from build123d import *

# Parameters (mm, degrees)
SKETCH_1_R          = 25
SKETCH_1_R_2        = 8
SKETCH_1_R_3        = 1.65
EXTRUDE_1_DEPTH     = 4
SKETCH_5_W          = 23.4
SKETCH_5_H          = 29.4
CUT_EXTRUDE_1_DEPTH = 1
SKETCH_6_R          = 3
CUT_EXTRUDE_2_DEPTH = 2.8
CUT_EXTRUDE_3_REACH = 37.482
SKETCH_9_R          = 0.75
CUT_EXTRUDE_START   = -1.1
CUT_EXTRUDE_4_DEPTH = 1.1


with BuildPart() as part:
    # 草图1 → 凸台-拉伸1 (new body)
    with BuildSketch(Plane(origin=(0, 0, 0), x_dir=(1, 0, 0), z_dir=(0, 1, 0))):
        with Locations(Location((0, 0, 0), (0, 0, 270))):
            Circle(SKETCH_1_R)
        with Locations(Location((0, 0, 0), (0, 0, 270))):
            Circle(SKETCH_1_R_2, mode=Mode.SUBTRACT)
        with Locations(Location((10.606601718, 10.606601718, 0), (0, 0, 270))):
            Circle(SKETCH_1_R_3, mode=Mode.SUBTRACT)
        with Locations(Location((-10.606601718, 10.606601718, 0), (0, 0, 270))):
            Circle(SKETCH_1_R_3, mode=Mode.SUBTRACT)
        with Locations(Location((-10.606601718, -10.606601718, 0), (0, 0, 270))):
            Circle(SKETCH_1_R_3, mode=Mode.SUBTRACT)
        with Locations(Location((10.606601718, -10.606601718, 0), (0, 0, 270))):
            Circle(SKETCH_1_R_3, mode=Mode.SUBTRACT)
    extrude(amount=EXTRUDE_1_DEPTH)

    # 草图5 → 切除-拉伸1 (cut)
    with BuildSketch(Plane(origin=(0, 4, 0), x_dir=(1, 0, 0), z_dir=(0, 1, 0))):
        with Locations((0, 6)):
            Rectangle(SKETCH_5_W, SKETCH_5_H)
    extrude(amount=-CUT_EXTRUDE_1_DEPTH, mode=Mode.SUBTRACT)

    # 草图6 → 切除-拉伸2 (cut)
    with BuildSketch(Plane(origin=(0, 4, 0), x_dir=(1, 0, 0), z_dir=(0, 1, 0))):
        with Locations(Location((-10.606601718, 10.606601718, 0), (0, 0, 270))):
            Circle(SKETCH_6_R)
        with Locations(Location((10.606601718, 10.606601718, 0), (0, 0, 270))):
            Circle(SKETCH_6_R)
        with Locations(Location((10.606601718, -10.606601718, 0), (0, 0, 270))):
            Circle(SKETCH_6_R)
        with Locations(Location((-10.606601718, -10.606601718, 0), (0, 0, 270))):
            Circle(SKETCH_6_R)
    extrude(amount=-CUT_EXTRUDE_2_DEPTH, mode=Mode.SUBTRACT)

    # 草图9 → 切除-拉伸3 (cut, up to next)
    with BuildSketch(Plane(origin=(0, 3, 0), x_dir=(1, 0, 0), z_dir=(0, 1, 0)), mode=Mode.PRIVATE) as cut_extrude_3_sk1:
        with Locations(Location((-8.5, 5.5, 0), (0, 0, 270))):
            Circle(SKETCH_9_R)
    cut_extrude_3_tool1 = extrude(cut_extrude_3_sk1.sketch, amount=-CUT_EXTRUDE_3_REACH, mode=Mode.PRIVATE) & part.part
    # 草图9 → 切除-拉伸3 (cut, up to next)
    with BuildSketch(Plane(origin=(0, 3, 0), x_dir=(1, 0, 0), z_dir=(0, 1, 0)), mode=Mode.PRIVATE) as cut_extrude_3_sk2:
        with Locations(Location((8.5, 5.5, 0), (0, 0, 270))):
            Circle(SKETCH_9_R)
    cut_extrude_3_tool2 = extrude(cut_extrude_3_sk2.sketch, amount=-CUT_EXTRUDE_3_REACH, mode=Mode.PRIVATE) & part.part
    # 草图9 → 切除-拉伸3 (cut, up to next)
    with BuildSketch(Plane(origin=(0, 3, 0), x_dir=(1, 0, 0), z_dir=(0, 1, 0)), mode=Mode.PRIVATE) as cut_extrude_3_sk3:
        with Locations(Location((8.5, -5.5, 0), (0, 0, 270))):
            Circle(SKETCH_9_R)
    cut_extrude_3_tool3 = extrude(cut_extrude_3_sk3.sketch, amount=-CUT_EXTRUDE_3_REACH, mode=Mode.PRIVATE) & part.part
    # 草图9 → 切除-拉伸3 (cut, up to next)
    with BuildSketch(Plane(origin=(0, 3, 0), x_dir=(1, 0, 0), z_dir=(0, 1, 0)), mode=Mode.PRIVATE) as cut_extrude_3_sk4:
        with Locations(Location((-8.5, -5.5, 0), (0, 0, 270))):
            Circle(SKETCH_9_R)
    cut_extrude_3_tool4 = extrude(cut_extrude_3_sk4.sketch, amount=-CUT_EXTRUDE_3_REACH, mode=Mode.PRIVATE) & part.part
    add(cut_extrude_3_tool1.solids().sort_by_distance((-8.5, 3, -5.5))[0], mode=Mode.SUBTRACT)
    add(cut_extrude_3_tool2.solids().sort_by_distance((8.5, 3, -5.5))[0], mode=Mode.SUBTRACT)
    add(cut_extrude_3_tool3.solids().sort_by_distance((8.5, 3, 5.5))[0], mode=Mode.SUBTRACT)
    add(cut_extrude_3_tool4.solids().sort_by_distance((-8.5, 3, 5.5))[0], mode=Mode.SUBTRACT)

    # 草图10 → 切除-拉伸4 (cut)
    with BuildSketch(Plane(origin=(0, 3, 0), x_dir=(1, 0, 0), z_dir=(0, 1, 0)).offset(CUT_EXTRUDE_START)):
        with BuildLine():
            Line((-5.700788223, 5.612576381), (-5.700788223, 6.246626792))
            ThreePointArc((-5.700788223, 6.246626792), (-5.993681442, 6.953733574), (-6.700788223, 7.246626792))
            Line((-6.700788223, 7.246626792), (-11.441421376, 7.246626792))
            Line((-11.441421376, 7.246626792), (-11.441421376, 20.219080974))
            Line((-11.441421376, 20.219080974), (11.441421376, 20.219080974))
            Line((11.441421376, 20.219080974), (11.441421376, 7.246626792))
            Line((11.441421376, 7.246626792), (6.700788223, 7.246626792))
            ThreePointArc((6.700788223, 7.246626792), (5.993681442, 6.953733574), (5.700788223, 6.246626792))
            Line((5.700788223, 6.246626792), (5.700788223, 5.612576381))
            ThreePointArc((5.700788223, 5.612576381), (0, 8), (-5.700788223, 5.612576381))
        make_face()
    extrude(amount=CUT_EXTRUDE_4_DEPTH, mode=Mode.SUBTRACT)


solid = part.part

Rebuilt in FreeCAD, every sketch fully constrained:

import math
import FreeCAD as App
import Part
import Sketcher

V = App.Vector
Q = App.Units.Quantity


def add_polygon(sketch, points):
    """Adds a closed chain of lines whose ends are joined by coincident constraints."""
    first, n = sketch.GeometryCount, len(points)
    for a, b in zip(points, points[1:] + points[:1]):
        sketch.addGeometry(Part.LineSegment(App.Vector(*a, 0), App.Vector(*b, 0)), False)
    for i in range(n):
        sketch.addConstraint(Sketcher.Constraint("Coincident", first + i, 2, first + (i + 1) % n, 1))

doc = App.newDocument("Part")
body = doc.addObject("PartDesign::Body", "Body")

# Sketch on XZ plane
sketch1 = doc.addObject("Sketcher::SketchObject", "Sketch")
body.addObject(sketch1)
sketch1.AttachmentSupport = (doc.XZ_Plane, [""])
sketch1.MapMode = "FlatFace"
sketch1.addGeometry([
    Part.Circle(V(0, 0, 0), V(0, 0, 1), 25),  # 0
    Part.Circle(V(-10.6, -10.6, 0), V(0, 0, 1), 1.6),  # 1
    Part.Circle(V(-10.6, 10.6, 0), V(0, 0, 1), 1.6),  # 2
    Part.Circle(V(10.6, -10.6, 0), V(0, 0, 1), 1.6),  # 3
    Part.Circle(V(0, 0, 0), V(0, 0, 1), 8),  # 4
    Part.Circle(V(10.6, 10.6, 0), V(0, 0, 1), 1.6),  # 5
], False)
sketch1.addConstraint([
    Sketcher.Constraint("Coincident", 0, 3, -1, 1),
    Sketcher.Constraint("Coincident", 4, 3, -1, 1),
    Sketcher.Constraint("Equal", 1, 2),
    Sketcher.Constraint("Equal", 2, 3),
    Sketcher.Constraint("Equal", 3, 5),
    Sketcher.Constraint("Symmetric", 2, 3, 3, 3, -1, 1),
    Sketcher.Constraint("Symmetric", 1, 3, 5, 3, -1, 1),
    Sketcher.Constraint("Symmetric", 1, 3, 3, 3, -2),
    Sketcher.Constraint("Diameter", 0, Q("50 mm")),
    Sketcher.Constraint("Diameter", 4, Q("16 mm")),
    Sketcher.Constraint("Diameter", 1, Q("3.3 mm")),
    Sketcher.Constraint("DistanceX", 1, 3, -1, 1, Q("10.606602 mm")),
    Sketcher.Constraint("DistanceY", 1, 3, -1, 1, Q("10.606602 mm")),
])
pad1 = doc.addObject("PartDesign::Pad", "Pad")
body.addObject(pad1)
pad1.Profile = sketch1
pad1.Length = 4
pad1.Reversed = True

# Sketch on XZ plane
sketch2 = doc.addObject("Sketcher::SketchObject", "Sketch001")
body.addObject(sketch2)
sketch2.AttachmentSupport = (doc.XZ_Plane, [""])
sketch2.MapMode = "FlatFace"
sketch2.AttachmentOffset = App.Placement(V(0, 0, -4), App.Rotation())
add_polygon(sketch2, [(-12, -21), (-12, 9), (12, 9), (12, -21)])  # lines 0-3
sketch2.addConstraint([
    Sketcher.Constraint("Vertical", 0),
    Sketcher.Constraint("Horizontal", 1),
    Sketcher.Constraint("Vertical", 2),
    Sketcher.Constraint("Horizontal", 3),
    Sketcher.Constraint("DistanceX", 1, 1, 1, 2, Q("23.4 mm")),
    Sketcher.Constraint("DistanceY", 0, 1, 0, 2, Q("29.4 mm")),
    Sketcher.Constraint("DistanceX", 0, 2, -1, 1, Q("11.7 mm")),
    Sketcher.Constraint("DistanceY", -1, 1, 0, 2, Q("8.7 mm")),
])
pocket1 = doc.addObject("PartDesign::Pocket", "Pocket")
body.addObject(pocket1)
pocket1.Profile = sketch2
pocket1.Length = 1
pocket1.Reversed = True

# Sketch on XZ plane
sketch3 = doc.addObject("Sketcher::SketchObject", "Sketch002")
body.addObject(sketch3)
sketch3.AttachmentSupport = (doc.XZ_Plane, [""])
sketch3.MapMode = "FlatFace"
sketch3.AttachmentOffset = App.Placement(V(0, 0, -4), App.Rotation())
sketch3.addGeometry([
    Part.Circle(V(-10.6, -10.6, 0), V(0, 0, 1), 3),
    Part.Circle(V(10.6, -10.6, 0), V(0, 0, 1), 3),
    Part.Circle(V(10.6, 10.6, 0), V(0, 0, 1), 3),
    Part.Circle(V(-10.6, 10.6, 0), V(0, 0, 1), 3),
], False)
sketch3.addConstraint([
    Sketcher.Constraint("Equal", 0, 1),
    Sketcher.Constraint("Equal", 1, 2),
    Sketcher.Constraint("Equal", 2, 3),
    Sketcher.Constraint("Symmetric", 0, 3, 2, 3, -1, 1),
    Sketcher.Constraint("Symmetric", 1, 3, 3, 3, -1, 1),
    Sketcher.Constraint("Symmetric", 0, 3, 1, 3, -2),
    Sketcher.Constraint("Diameter", 0, Q("6 mm")),
    Sketcher.Constraint("DistanceX", 0, 3, -1, 1, Q("10.606602 mm")),
    Sketcher.Constraint("DistanceY", 0, 3, -1, 1, Q("10.606602 mm")),
])
pocket2 = doc.addObject("PartDesign::Pocket", "Pocket001")
body.addObject(pocket2)
pocket2.Profile = sketch3
pocket2.Length = 2.8
pocket2.Reversed = True

# Sketch on XZ plane
sketch4 = doc.addObject("Sketcher::SketchObject", "Sketch003")
body.addObject(sketch4)
sketch4.AttachmentSupport = (doc.XZ_Plane, [""])
sketch4.MapMode = "FlatFace"
sketch4.AttachmentOffset = App.Placement(V(0, 0, -3), App.Rotation())
sketch4.addGeometry(Part.Circle(V(-8.5, -5.5, 0), V(0, 0, 1), 0.8), False)
sketch4.addConstraint([
    Sketcher.Constraint("Diameter", 0, Q("1.5 mm")),
    Sketcher.Constraint("DistanceX", 0, 3, -1, 1, Q("8.5 mm")),
    Sketcher.Constraint("DistanceY", 0, 3, -1, 1, Q("5.5 mm")),
])
pocket3 = doc.addObject("PartDesign::Pocket", "Pocket002")
body.addObject(pocket3)
pocket3.Profile = sketch4
pocket3.Type = "UpToFirst"
pocket3.Reversed = True

# Sketch on XZ plane
sketch5 = doc.addObject("Sketcher::SketchObject", "Sketch004")
body.addObject(sketch5)
sketch5.AttachmentSupport = (doc.XZ_Plane, [""])
sketch5.MapMode = "FlatFace"
sketch5.AttachmentOffset = App.Placement(V(0, 0, -3), App.Rotation())
sketch5.addGeometry(Part.Circle(V(8.5, -5.5, 0), V(0, 0, 1), 0.8), False)
sketch5.addConstraint([
    Sketcher.Constraint("Diameter", 0, Q("1.5 mm")),
    Sketcher.Constraint("DistanceX", -1, 1, 0, 3, Q("8.5 mm")),
    Sketcher.Constraint("DistanceY", 0, 3, -1, 1, Q("5.5 mm")),
])
pocket4 = doc.addObject("PartDesign::Pocket", "Pocket003")
body.addObject(pocket4)
pocket4.Profile = sketch5
pocket4.Type = "UpToFirst"
pocket4.Reversed = True

# Sketch on XZ plane
sketch6 = doc.addObject("Sketcher::SketchObject", "Sketch005")
body.addObject(sketch6)
sketch6.AttachmentSupport = (doc.XZ_Plane, [""])
sketch6.MapMode = "FlatFace"
sketch6.AttachmentOffset = App.Placement(V(0, 0, -3), App.Rotation())
sketch6.addGeometry(Part.Circle(V(8.5, 5.5, 0), V(0, 0, 1), 0.8), False)
sketch6.addConstraint([
    Sketcher.Constraint("Diameter", 0, Q("1.5 mm")),
    Sketcher.Constraint("DistanceX", -1, 1, 0, 3, Q("8.5 mm")),
    Sketcher.Constraint("DistanceY", -1, 1, 0, 3, Q("5.5 mm")),
])
pocket5 = doc.addObject("PartDesign::Pocket", "Pocket004")
body.addObject(pocket5)
pocket5.Profile = sketch6
pocket5.Type = "UpToFirst"
pocket5.Reversed = True

# Sketch on XZ plane
sketch7 = doc.addObject("Sketcher::SketchObject", "Sketch006")
body.addObject(sketch7)
sketch7.AttachmentSupport = (doc.XZ_Plane, [""])
sketch7.MapMode = "FlatFace"
sketch7.AttachmentOffset = App.Placement(V(0, 0, -3), App.Rotation())
sketch7.addGeometry(Part.Circle(V(-8.5, 5.5, 0), V(0, 0, 1), 0.8), False)
sketch7.addConstraint([
    Sketcher.Constraint("Diameter", 0, Q("1.5 mm")),
    Sketcher.Constraint("DistanceX", 0, 3, -1, 1, Q("8.5 mm")),
    Sketcher.Constraint("DistanceY", -1, 1, 0, 3, Q("5.5 mm")),
])
pocket6 = doc.addObject("PartDesign::Pocket", "Pocket005")
body.addObject(pocket6)
pocket6.Profile = sketch7
pocket6.Type = "UpToFirst"
pocket6.Reversed = True

# Sketch on XZ plane
sketch8 = doc.addObject("Sketcher::SketchObject", "Sketch007")
body.addObject(sketch8)
sketch8.AttachmentSupport = (doc.XZ_Plane, [""])
sketch8.MapMode = "FlatFace"
sketch8.AttachmentOffset = App.Placement(V(0, 0, -1.9), App.Rotation())
sketch8.addGeometry([
    Part.LineSegment(V(-5.7, -6.2, 0), V(-5.7, -5.6, 0)),  # 0
    Part.ArcOfCircle(Part.Circle(V(0, 0, 0), V(0, 0, 1), 8), math.radians(-135), math.radians(-45)),  # 1
    Part.LineSegment(V(5.7, -5.6, 0), V(5.7, -6.2, 0)),  # 2
    Part.ArcOfCircle(Part.Circle(V(6.7, -6.2, 0), V(0, 0, 1), 1), math.radians(180), math.radians(270)),  # 3
    Part.LineSegment(V(6.7, -7.2, 0), V(11.4, -7.2, 0)),  # 4
    Part.LineSegment(V(11.4, -7.2, 0), V(11.4, -20.2, 0)),  # 5
    Part.LineSegment(V(11.4, -20.2, 0), V(-11.4, -20.2, 0)),  # 6
    Part.LineSegment(V(-11.4, -20.2, 0), V(-11.4, -7.2, 0)),  # 7
    Part.LineSegment(V(-11.4, -7.2, 0), V(-6.7, -7.2, 0)),  # 8
    Part.ArcOfCircle(Part.Circle(V(-6.7, -6.2, 0), V(0, 0, 1), 1), math.radians(-90), math.radians(0)),  # 9
], False)
sketch8.addConstraint([
    Sketcher.Constraint("Coincident", 0, 2, 1, 1),
    Sketcher.Constraint("Coincident", 1, 2, 2, 1),
    Sketcher.Constraint("Tangent", 2, 2, 3, 1),
    Sketcher.Constraint("Tangent", 3, 2, 4, 1),
    Sketcher.Constraint("Coincident", 4, 2, 5, 1),
    Sketcher.Constraint("Coincident", 5, 2, 6, 1),
    Sketcher.Constraint("Coincident", 6, 2, 7, 1),
    Sketcher.Constraint("Coincident", 7, 2, 8, 1),
    Sketcher.Constraint("Tangent", 8, 2, 9, 1),
    Sketcher.Constraint("Tangent", 9, 2, 0, 1),
    Sketcher.Constraint("Vertical", 0),
    Sketcher.Constraint("Vertical", 2),
    Sketcher.Constraint("Horizontal", 4),
    Sketcher.Constraint("Vertical", 5),
    Sketcher.Constraint("Horizontal", 6),
    Sketcher.Constraint("Vertical", 7),
    Sketcher.Constraint("Horizontal", 8),
    Sketcher.Constraint("Coincident", 1, 3, -1, 1),
    Sketcher.Constraint("Equal", 3, 9),
    Sketcher.Constraint("Symmetric", 3, 3, 9, 3, -2),
    Sketcher.Constraint("Equal", 4, 8),
    Sketcher.Constraint("Radius", 1, Q("8 mm")),
    Sketcher.Constraint("Radius", 3, Q("1 mm")),
    Sketcher.Constraint("DistanceY", 0, 1, 0, 2, Q("0.63405 mm")),
    Sketcher.Constraint("DistanceX", 4, 1, 4, 2, Q("4.740633 mm")),
    Sketcher.Constraint("DistanceX", 6, 2, 6, 1, Q("22.882843 mm")),
    Sketcher.Constraint("DistanceY", 5, 2, 5, 1, Q("12.972454 mm")),
])
pocket7 = doc.addObject("PartDesign::Pocket", "Pocket006")
body.addObject(pocket7)
pocket7.Profile = sketch8
pocket7.Length = 1.1

doc.recompute()
